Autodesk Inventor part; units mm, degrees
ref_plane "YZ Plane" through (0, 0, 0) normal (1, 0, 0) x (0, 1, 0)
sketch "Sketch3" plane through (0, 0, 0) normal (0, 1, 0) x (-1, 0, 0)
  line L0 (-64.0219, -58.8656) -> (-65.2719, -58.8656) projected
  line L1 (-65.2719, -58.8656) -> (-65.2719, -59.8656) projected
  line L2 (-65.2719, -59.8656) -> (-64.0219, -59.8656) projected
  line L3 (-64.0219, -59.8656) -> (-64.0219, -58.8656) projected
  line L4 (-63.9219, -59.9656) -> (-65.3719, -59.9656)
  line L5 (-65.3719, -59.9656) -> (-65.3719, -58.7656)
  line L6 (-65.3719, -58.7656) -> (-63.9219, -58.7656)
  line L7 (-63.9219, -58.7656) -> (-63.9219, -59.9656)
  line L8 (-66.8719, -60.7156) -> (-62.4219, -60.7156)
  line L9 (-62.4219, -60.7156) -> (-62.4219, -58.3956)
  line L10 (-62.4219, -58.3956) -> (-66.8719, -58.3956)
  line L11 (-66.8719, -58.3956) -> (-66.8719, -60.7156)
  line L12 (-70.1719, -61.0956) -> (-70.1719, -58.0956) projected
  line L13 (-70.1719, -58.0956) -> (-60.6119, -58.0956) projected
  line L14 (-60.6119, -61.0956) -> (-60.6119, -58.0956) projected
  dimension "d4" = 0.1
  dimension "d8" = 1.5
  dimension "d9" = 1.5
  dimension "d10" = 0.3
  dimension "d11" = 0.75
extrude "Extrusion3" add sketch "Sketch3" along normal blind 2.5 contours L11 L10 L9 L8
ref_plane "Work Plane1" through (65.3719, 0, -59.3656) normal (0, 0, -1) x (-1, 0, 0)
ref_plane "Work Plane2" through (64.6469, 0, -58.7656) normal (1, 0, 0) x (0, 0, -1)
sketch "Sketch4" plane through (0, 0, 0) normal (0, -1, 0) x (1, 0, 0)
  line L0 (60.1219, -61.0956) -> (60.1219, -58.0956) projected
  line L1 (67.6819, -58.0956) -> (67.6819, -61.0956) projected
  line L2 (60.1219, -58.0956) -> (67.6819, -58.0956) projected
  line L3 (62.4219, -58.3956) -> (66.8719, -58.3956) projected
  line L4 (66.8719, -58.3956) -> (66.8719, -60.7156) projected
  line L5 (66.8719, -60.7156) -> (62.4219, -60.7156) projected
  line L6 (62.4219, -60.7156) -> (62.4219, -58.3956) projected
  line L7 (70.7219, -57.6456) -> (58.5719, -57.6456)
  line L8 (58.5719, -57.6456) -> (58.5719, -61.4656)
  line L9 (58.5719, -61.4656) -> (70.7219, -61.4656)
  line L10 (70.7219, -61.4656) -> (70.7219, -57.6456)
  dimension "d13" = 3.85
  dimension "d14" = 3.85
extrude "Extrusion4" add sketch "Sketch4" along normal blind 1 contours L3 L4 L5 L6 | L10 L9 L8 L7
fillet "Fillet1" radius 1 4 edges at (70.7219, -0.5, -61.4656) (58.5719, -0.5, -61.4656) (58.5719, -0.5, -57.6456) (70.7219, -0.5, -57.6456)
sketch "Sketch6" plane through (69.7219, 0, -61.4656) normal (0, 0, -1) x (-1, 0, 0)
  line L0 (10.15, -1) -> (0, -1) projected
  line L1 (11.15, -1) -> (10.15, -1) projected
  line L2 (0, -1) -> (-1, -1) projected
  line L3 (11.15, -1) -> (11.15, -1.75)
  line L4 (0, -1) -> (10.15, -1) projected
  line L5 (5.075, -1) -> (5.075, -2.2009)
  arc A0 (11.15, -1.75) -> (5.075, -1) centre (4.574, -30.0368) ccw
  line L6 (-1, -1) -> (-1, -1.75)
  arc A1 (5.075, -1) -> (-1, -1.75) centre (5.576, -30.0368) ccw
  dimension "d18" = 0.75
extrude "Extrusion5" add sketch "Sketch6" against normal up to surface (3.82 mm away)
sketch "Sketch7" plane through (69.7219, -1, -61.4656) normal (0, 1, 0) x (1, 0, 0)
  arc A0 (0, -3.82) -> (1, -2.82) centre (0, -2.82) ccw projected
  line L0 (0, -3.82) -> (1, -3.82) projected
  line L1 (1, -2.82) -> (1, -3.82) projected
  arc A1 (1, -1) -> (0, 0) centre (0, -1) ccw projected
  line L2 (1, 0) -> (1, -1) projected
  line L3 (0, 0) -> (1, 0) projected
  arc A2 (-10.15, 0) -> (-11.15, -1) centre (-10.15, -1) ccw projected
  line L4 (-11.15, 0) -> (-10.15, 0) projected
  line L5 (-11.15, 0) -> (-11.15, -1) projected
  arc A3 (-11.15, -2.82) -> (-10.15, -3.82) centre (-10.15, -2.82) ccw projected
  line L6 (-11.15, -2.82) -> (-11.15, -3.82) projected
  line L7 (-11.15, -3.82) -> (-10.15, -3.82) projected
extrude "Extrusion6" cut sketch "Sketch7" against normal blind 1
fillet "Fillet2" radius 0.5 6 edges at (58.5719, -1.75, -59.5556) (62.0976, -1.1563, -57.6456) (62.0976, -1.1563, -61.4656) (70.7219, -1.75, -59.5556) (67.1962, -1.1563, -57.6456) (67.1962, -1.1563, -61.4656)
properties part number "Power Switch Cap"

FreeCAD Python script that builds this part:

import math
import FreeCAD as App
import Part
import Sketcher
from FreeCAD import Vector
Q = App.Units.Quantity


def edges_at(feature, points):
    """Names of the edges that pass closest to the given points."""
    edges = feature.Shape.Edges
    near = lambda p: min(range(len(edges)), key=lambda i: edges[i].distToShape(Part.Vertex(*p))[0])
    return sorted({f"Edge{near(p) + 1}" for p in points})

doc = App.newDocument("Part")
body = doc.addObject("PartDesign::Body", "Body")

# Sketch on XZ plane
sketch1 = body.newObject("Sketcher::SketchObject", "Sketch")
sketch1.AttachmentSupport = (doc.getObject("XZ_Plane"), [""])
sketch1.MapMode = "FlatFace"
sketch1.addGeometry([
    Part.LineSegment(Vector(66.9, -58.4, 0), Vector(66.9, -60.7, 0)),  # 0
    Part.LineSegment(Vector(66.9, -60.7, 0), Vector(62.4, -60.7, 0)),  # 1
    Part.LineSegment(Vector(62.4, -60.7, 0), Vector(62.4, -58.4, 0)),  # 2
    Part.LineSegment(Vector(62.4, -58.4, 0), Vector(66.9, -58.4, 0)),  # 3
    Part.LineSegment(Vector(63.9, -58.8, 0), Vector(63.9, -60, 0)),  # 4
    Part.LineSegment(Vector(63.9, -60, 0), Vector(65.4, -60, 0)),  # 5
    Part.LineSegment(Vector(65.4, -60, 0), Vector(65.4, -58.8, 0)),  # 6
    Part.LineSegment(Vector(65.4, -58.8, 0), Vector(63.9, -58.8, 0)),  # 7
], False)
sketch1.addConstraint([
    Sketcher.Constraint("Coincident", 0, 2, 1, 1),
    Sketcher.Constraint("Coincident", 1, 2, 2, 1),
    Sketcher.Constraint("Coincident", 2, 2, 3, 1),
    Sketcher.Constraint("Coincident", 3, 2, 0, 1),
    Sketcher.Constraint("Coincident", 4, 2, 5, 1),
    Sketcher.Constraint("Coincident", 5, 2, 6, 1),
    Sketcher.Constraint("Coincident", 6, 2, 7, 1),
    Sketcher.Constraint("Coincident", 7, 2, 4, 1),
    Sketcher.Constraint("Vertical", 0),
    Sketcher.Constraint("Horizontal", 1),
    Sketcher.Constraint("Vertical", 2),
    Sketcher.Constraint("Horizontal", 3),
    Sketcher.Constraint("Vertical", 4),
    Sketcher.Constraint("Horizontal", 5),
    Sketcher.Constraint("Vertical", 6),
    Sketcher.Constraint("Horizontal", 7),
    Sketcher.Constraint("DistanceX", 1, 2, 4, 2, Q("1.5 mm")),
    Sketcher.Constraint("DistanceX", 5, 2, 0, 2, Q("1.5 mm")),
    Sketcher.Constraint("DistanceY", 1, 2, 4, 2, Q("0.75 mm")),
    Sketcher.Constraint("DistanceY", 4, 2, 4, 1, Q("1.2 mm")),
    Sketcher.Constraint("DistanceX", 1, 2, 1, 1, Q("4.45 mm")),
    Sketcher.Constraint("DistanceY", 0, 2, 0, 1, Q("2.32 mm")),
    Sketcher.Constraint("DistanceX", -1, 1, 0, 2, Q("66.872 mm")),
    Sketcher.Constraint("DistanceY", 0, 2, -1, 1, Q("60.7156 mm")),
])
pad1 = body.newObject("PartDesign::Pad", "Pad")
pad1.Profile = sketch1
pad1.Length = 2.5
pad1.Reversed = True

# Sketch on XZ plane
sketch2 = body.newObject("Sketcher::SketchObject", "Sketch001")
sketch2.AttachmentSupport = (doc.getObject("XZ_Plane"), [""])
sketch2.MapMode = "FlatFace"
sketch2.addGeometry([
    Part.LineSegment(Vector(70.7, -61.5, 0), Vector(70.7, -57.6, 0)),
    Part.LineSegment(Vector(70.7, -57.6, 0), Vector(58.6, -57.6, 0)),
    Part.LineSegment(Vector(58.6, -57.6, 0), Vector(58.6, -61.5, 0)),
    Part.LineSegment(Vector(58.6, -61.5, 0), Vector(70.7, -61.5, 0)),
], False)
sketch2.addConstraint([
    Sketcher.Constraint("Coincident", 0, 2, 1, 1),
    Sketcher.Constraint("Coincident", 1, 2, 2, 1),
    Sketcher.Constraint("Coincident", 2, 2, 3, 1),
    Sketcher.Constraint("Coincident", 3, 2, 0, 1),
    Sketcher.Constraint("Vertical", 0),
    Sketcher.Constraint("Horizontal", 1),
    Sketcher.Constraint("Vertical", 2),
    Sketcher.Constraint("Horizontal", 3),
    Sketcher.Constraint("DistanceX", 1, 2, 1, 1, Q("12.15 mm")),
    Sketcher.Constraint("DistanceY", 0, 1, 0, 2, Q("3.82 mm")),
    Sketcher.Constraint("DistanceX", -1, 1, 0, 2, Q("70.722 mm")),
    Sketcher.Constraint("DistanceY", 0, 2, -1, 1, Q("57.6456 mm")),
])
pad2 = body.newObject("PartDesign::Pad", "Pad001")
pad2.Profile = sketch2
pad2.Length = 1
doc.recompute()

fillet = body.newObject("PartDesign::Fillet", "Fillet")
fillet.Base = (pad2, edges_at(pad2, [
    (70.722, -0.5, -61.466),
    (58.572, -0.5, -61.466),
    (58.572, -0.5, -57.646),
    (70.722, -0.5, -57.646),
]))
fillet.Radius = 1

# Sketch on XY plane
sketch3 = body.newObject("Sketcher::SketchObject", "Sketch002")
sketch3.AttachmentSupport = (doc.getObject("XY_Plane"), [""])
sketch3.MapMode = "FlatFace"
sketch3.AttachmentOffset = App.Placement(Vector(0, 0, -61.4656), App.Rotation())
sketch3.addGeometry([
    Part.LineSegment(Vector(58.6, -1, 0), Vector(64.6, -1, 0)),  # 0
    Part.ArcOfCircle(Part.Circle(Vector(65.1, -30, 0), Vector(0, 0, 1), 29), math.radians(90.99), math.radians(103.09)),  # 1
    Part.LineSegment(Vector(58.6, -1.8, 0), Vector(58.6, -1, 0)),  # 2
    Part.ArcOfCircle(Part.Circle(Vector(64.1, -30, 0), Vector(0, 0, 1), 29), math.radians(76.91), math.radians(89.01)),  # 3
    Part.LineSegment(Vector(64.6, -1, 0), Vector(70.7, -1, 0)),  # 4
    Part.LineSegment(Vector(70.7, -1, 0), Vector(70.7, -1.8, 0)),  # 5
], False)
sketch3.addConstraint([
    Sketcher.Constraint("Coincident", 0, 2, 1, 1),
    Sketcher.Constraint("Coincident", 1, 2, 2, 1),
    Sketcher.Constraint("Coincident", 2, 2, 0, 1),
    Sketcher.Constraint("Coincident", 3, 2, 4, 1),
    Sketcher.Constraint("Coincident", 4, 2, 5, 1),
    Sketcher.Constraint("Coincident", 5, 2, 3, 1),
    Sketcher.Constraint("Horizontal", 0),
    Sketcher.Constraint("Vertical", 2),
    Sketcher.Constraint("Horizontal", 4),
    Sketcher.Constraint("Vertical", 5),
    Sketcher.Constraint("Coincident", 3, 2, 0, 2),
    Sketcher.Constraint("Equal", 1, 3),
    Sketcher.Constraint("Horizontal", 1, 3, 3, 3),
    Sketcher.Constraint("Horizontal", 1, 2, 5, 2),
    Sketcher.Constraint("DistanceY", 2, 1, 2, 2, Q("0.75 mm")),
    Sketcher.Constraint("DistanceY", 0, 2, -1, 1, Q("1 mm")),
    Sketcher.Constraint("Radius", 1, Q("29.0411 mm")),
    Sketcher.Constraint("DistanceX", 0, 1, 0, 2, Q("6.075 mm")),
    Sketcher.Constraint("DistanceX", -1, 1, 1, 3, Q("65.148 mm")),
])
pad3 = body.newObject("PartDesign::Pad", "Pad002")
pad3.Profile = sketch3
pad3.Length = 3.82

# Sketch on XZ plane
sketch4 = body.newObject("Sketcher::SketchObject", "Sketch003")
sketch4.AttachmentSupport = (doc.getObject("XZ_Plane"), [""])
sketch4.MapMode = "FlatFace"
sketch4.AttachmentOffset = App.Placement(Vector(0, 0, 1), App.Rotation())
sketch4.addGeometry([
    Part.ArcOfCircle(Part.Circle(Vector(69.7, -58.6, 0), Vector(0, 0, 1), 1), math.radians(0), math.radians(90)),  # 0
    Part.LineSegment(Vector(69.7, -57.6, 0), Vector(70.7, -57.6, 0)),  # 1
    Part.LineSegment(Vector(70.7, -57.6, 0), Vector(70.7, -58.6, 0)),  # 2
    Part.ArcOfCircle(Part.Circle(Vector(69.7, -60.5, 0), Vector(0, 0, 1), 1), math.radians(-90), math.radians(0)),  # 3
    Part.LineSegment(Vector(70.7, -60.5, 0), Vector(70.7, -61.5, 0)),  # 4
    Part.LineSegment(Vector(70.7, -61.5, 0), Vector(69.7, -61.5, 0)),  # 5
    Part.ArcOfCircle(Part.Circle(Vector(59.6, -60.5, 0), Vector(0, 0, 1), 1), math.radians(180), math.radians(270)),  # 6
    Part.LineSegment(Vector(59.6, -61.5, 0), Vector(58.6, -61.5, 0)),  # 7
    Part.LineSegment(Vector(58.6, -61.5, 0), Vector(58.6, -60.5, 0)),  # 8
    Part.ArcOfCircle(Part.Circle(Vector(59.6, -58.6, 0), Vector(0, 0, 1), 1), math.radians(90), math.radians(180)),  # 9
    Part.LineSegment(Vector(58.6, -58.6, 0), Vector(58.6, -57.6, 0)),  # 10
    Part.LineSegment(Vector(58.6, -57.6, 0), Vector(59.6, -57.6, 0)),  # 11
], False)
sketch4.addConstraint([
    Sketcher.Constraint("Tangent", 0, 2, 1, 1),
    Sketcher.Constraint("Coincident", 1, 2, 2, 1),
    Sketcher.Constraint("Tangent", 2, 2, 0, 1),
    Sketcher.Constraint("Tangent", 3, 2, 4, 1),
    Sketcher.Constraint("Coincident", 4, 2, 5, 1),
    Sketcher.Constraint("Tangent", 5, 2, 3, 1),
    Sketcher.Constraint("Tangent", 6, 2, 7, 1),
    Sketcher.Constraint("Coincident", 7, 2, 8, 1),
    Sketcher.Constraint("Tangent", 8, 2, 6, 1),
    Sketcher.Constraint("Tangent", 9, 2, 10, 1),
    Sketcher.Constraint("Coincident", 10, 2, 11, 1),
    Sketcher.Constraint("Tangent", 11, 2, 9, 1),
    Sketcher.Constraint("Horizontal", 1),
    Sketcher.Constraint("Vertical", 2),
    Sketcher.Constraint("Vertical", 4),
    Sketcher.Constraint("Horizontal", 5),
    Sketcher.Constraint("Horizontal", 7),
    Sketcher.Constraint("Vertical", 8),
    Sketcher.Constraint("Vertical", 10),
    Sketcher.Constraint("Horizontal", 11),
    Sketcher.Constraint("Equal", 0, 3),
    Sketcher.Constraint("Equal", 3, 6),
    Sketcher.Constraint("Equal", 6, 9),
    Sketcher.Constraint("Horizontal", 3, 3, 6, 3),
    Sketcher.Constraint("Horizontal", 0, 3, 9, 3),
    Sketcher.Constraint("Vertical", 0, 3, 3, 3),
    Sketcher.Constraint("Vertical", 6, 3, 9, 3),
    Sketcher.Constraint("Radius", 0, Q("1 mm")),
    Sketcher.Constraint("DistanceY", 3, 3, 0, 3, Q("1.82 mm")),
    Sketcher.Constraint("DistanceX", 6, 3, 3, 3, Q("10.15 mm")),
    Sketcher.Constraint("DistanceX", -1, 1, 0, 3, Q("69.722 mm")),
    Sketcher.Constraint("DistanceY", 0, 3, -1, 1, Q("58.6456 mm")),
])
pocket1 = body.newObject("PartDesign::Pocket", "Pocket")
pocket1.Profile = sketch4
pocket1.Length = 1
pocket1.Reversed = True
doc.recompute()

fillet2 = body.newObject("PartDesign::Fillet", "Fillet001")
fillet2.Base = (pocket1, edges_at(pocket1, [
    (58.572, -1.75, -59.556),
    (62.098, -1.156, -57.646),
    (62.098, -1.156, -61.466),
    (70.722, -1.75, -59.556),
    (67.196, -1.156, -57.646),
    (67.196, -1.156, -61.466),
]))
fillet2.Radius = 0.5

doc.recompute()
